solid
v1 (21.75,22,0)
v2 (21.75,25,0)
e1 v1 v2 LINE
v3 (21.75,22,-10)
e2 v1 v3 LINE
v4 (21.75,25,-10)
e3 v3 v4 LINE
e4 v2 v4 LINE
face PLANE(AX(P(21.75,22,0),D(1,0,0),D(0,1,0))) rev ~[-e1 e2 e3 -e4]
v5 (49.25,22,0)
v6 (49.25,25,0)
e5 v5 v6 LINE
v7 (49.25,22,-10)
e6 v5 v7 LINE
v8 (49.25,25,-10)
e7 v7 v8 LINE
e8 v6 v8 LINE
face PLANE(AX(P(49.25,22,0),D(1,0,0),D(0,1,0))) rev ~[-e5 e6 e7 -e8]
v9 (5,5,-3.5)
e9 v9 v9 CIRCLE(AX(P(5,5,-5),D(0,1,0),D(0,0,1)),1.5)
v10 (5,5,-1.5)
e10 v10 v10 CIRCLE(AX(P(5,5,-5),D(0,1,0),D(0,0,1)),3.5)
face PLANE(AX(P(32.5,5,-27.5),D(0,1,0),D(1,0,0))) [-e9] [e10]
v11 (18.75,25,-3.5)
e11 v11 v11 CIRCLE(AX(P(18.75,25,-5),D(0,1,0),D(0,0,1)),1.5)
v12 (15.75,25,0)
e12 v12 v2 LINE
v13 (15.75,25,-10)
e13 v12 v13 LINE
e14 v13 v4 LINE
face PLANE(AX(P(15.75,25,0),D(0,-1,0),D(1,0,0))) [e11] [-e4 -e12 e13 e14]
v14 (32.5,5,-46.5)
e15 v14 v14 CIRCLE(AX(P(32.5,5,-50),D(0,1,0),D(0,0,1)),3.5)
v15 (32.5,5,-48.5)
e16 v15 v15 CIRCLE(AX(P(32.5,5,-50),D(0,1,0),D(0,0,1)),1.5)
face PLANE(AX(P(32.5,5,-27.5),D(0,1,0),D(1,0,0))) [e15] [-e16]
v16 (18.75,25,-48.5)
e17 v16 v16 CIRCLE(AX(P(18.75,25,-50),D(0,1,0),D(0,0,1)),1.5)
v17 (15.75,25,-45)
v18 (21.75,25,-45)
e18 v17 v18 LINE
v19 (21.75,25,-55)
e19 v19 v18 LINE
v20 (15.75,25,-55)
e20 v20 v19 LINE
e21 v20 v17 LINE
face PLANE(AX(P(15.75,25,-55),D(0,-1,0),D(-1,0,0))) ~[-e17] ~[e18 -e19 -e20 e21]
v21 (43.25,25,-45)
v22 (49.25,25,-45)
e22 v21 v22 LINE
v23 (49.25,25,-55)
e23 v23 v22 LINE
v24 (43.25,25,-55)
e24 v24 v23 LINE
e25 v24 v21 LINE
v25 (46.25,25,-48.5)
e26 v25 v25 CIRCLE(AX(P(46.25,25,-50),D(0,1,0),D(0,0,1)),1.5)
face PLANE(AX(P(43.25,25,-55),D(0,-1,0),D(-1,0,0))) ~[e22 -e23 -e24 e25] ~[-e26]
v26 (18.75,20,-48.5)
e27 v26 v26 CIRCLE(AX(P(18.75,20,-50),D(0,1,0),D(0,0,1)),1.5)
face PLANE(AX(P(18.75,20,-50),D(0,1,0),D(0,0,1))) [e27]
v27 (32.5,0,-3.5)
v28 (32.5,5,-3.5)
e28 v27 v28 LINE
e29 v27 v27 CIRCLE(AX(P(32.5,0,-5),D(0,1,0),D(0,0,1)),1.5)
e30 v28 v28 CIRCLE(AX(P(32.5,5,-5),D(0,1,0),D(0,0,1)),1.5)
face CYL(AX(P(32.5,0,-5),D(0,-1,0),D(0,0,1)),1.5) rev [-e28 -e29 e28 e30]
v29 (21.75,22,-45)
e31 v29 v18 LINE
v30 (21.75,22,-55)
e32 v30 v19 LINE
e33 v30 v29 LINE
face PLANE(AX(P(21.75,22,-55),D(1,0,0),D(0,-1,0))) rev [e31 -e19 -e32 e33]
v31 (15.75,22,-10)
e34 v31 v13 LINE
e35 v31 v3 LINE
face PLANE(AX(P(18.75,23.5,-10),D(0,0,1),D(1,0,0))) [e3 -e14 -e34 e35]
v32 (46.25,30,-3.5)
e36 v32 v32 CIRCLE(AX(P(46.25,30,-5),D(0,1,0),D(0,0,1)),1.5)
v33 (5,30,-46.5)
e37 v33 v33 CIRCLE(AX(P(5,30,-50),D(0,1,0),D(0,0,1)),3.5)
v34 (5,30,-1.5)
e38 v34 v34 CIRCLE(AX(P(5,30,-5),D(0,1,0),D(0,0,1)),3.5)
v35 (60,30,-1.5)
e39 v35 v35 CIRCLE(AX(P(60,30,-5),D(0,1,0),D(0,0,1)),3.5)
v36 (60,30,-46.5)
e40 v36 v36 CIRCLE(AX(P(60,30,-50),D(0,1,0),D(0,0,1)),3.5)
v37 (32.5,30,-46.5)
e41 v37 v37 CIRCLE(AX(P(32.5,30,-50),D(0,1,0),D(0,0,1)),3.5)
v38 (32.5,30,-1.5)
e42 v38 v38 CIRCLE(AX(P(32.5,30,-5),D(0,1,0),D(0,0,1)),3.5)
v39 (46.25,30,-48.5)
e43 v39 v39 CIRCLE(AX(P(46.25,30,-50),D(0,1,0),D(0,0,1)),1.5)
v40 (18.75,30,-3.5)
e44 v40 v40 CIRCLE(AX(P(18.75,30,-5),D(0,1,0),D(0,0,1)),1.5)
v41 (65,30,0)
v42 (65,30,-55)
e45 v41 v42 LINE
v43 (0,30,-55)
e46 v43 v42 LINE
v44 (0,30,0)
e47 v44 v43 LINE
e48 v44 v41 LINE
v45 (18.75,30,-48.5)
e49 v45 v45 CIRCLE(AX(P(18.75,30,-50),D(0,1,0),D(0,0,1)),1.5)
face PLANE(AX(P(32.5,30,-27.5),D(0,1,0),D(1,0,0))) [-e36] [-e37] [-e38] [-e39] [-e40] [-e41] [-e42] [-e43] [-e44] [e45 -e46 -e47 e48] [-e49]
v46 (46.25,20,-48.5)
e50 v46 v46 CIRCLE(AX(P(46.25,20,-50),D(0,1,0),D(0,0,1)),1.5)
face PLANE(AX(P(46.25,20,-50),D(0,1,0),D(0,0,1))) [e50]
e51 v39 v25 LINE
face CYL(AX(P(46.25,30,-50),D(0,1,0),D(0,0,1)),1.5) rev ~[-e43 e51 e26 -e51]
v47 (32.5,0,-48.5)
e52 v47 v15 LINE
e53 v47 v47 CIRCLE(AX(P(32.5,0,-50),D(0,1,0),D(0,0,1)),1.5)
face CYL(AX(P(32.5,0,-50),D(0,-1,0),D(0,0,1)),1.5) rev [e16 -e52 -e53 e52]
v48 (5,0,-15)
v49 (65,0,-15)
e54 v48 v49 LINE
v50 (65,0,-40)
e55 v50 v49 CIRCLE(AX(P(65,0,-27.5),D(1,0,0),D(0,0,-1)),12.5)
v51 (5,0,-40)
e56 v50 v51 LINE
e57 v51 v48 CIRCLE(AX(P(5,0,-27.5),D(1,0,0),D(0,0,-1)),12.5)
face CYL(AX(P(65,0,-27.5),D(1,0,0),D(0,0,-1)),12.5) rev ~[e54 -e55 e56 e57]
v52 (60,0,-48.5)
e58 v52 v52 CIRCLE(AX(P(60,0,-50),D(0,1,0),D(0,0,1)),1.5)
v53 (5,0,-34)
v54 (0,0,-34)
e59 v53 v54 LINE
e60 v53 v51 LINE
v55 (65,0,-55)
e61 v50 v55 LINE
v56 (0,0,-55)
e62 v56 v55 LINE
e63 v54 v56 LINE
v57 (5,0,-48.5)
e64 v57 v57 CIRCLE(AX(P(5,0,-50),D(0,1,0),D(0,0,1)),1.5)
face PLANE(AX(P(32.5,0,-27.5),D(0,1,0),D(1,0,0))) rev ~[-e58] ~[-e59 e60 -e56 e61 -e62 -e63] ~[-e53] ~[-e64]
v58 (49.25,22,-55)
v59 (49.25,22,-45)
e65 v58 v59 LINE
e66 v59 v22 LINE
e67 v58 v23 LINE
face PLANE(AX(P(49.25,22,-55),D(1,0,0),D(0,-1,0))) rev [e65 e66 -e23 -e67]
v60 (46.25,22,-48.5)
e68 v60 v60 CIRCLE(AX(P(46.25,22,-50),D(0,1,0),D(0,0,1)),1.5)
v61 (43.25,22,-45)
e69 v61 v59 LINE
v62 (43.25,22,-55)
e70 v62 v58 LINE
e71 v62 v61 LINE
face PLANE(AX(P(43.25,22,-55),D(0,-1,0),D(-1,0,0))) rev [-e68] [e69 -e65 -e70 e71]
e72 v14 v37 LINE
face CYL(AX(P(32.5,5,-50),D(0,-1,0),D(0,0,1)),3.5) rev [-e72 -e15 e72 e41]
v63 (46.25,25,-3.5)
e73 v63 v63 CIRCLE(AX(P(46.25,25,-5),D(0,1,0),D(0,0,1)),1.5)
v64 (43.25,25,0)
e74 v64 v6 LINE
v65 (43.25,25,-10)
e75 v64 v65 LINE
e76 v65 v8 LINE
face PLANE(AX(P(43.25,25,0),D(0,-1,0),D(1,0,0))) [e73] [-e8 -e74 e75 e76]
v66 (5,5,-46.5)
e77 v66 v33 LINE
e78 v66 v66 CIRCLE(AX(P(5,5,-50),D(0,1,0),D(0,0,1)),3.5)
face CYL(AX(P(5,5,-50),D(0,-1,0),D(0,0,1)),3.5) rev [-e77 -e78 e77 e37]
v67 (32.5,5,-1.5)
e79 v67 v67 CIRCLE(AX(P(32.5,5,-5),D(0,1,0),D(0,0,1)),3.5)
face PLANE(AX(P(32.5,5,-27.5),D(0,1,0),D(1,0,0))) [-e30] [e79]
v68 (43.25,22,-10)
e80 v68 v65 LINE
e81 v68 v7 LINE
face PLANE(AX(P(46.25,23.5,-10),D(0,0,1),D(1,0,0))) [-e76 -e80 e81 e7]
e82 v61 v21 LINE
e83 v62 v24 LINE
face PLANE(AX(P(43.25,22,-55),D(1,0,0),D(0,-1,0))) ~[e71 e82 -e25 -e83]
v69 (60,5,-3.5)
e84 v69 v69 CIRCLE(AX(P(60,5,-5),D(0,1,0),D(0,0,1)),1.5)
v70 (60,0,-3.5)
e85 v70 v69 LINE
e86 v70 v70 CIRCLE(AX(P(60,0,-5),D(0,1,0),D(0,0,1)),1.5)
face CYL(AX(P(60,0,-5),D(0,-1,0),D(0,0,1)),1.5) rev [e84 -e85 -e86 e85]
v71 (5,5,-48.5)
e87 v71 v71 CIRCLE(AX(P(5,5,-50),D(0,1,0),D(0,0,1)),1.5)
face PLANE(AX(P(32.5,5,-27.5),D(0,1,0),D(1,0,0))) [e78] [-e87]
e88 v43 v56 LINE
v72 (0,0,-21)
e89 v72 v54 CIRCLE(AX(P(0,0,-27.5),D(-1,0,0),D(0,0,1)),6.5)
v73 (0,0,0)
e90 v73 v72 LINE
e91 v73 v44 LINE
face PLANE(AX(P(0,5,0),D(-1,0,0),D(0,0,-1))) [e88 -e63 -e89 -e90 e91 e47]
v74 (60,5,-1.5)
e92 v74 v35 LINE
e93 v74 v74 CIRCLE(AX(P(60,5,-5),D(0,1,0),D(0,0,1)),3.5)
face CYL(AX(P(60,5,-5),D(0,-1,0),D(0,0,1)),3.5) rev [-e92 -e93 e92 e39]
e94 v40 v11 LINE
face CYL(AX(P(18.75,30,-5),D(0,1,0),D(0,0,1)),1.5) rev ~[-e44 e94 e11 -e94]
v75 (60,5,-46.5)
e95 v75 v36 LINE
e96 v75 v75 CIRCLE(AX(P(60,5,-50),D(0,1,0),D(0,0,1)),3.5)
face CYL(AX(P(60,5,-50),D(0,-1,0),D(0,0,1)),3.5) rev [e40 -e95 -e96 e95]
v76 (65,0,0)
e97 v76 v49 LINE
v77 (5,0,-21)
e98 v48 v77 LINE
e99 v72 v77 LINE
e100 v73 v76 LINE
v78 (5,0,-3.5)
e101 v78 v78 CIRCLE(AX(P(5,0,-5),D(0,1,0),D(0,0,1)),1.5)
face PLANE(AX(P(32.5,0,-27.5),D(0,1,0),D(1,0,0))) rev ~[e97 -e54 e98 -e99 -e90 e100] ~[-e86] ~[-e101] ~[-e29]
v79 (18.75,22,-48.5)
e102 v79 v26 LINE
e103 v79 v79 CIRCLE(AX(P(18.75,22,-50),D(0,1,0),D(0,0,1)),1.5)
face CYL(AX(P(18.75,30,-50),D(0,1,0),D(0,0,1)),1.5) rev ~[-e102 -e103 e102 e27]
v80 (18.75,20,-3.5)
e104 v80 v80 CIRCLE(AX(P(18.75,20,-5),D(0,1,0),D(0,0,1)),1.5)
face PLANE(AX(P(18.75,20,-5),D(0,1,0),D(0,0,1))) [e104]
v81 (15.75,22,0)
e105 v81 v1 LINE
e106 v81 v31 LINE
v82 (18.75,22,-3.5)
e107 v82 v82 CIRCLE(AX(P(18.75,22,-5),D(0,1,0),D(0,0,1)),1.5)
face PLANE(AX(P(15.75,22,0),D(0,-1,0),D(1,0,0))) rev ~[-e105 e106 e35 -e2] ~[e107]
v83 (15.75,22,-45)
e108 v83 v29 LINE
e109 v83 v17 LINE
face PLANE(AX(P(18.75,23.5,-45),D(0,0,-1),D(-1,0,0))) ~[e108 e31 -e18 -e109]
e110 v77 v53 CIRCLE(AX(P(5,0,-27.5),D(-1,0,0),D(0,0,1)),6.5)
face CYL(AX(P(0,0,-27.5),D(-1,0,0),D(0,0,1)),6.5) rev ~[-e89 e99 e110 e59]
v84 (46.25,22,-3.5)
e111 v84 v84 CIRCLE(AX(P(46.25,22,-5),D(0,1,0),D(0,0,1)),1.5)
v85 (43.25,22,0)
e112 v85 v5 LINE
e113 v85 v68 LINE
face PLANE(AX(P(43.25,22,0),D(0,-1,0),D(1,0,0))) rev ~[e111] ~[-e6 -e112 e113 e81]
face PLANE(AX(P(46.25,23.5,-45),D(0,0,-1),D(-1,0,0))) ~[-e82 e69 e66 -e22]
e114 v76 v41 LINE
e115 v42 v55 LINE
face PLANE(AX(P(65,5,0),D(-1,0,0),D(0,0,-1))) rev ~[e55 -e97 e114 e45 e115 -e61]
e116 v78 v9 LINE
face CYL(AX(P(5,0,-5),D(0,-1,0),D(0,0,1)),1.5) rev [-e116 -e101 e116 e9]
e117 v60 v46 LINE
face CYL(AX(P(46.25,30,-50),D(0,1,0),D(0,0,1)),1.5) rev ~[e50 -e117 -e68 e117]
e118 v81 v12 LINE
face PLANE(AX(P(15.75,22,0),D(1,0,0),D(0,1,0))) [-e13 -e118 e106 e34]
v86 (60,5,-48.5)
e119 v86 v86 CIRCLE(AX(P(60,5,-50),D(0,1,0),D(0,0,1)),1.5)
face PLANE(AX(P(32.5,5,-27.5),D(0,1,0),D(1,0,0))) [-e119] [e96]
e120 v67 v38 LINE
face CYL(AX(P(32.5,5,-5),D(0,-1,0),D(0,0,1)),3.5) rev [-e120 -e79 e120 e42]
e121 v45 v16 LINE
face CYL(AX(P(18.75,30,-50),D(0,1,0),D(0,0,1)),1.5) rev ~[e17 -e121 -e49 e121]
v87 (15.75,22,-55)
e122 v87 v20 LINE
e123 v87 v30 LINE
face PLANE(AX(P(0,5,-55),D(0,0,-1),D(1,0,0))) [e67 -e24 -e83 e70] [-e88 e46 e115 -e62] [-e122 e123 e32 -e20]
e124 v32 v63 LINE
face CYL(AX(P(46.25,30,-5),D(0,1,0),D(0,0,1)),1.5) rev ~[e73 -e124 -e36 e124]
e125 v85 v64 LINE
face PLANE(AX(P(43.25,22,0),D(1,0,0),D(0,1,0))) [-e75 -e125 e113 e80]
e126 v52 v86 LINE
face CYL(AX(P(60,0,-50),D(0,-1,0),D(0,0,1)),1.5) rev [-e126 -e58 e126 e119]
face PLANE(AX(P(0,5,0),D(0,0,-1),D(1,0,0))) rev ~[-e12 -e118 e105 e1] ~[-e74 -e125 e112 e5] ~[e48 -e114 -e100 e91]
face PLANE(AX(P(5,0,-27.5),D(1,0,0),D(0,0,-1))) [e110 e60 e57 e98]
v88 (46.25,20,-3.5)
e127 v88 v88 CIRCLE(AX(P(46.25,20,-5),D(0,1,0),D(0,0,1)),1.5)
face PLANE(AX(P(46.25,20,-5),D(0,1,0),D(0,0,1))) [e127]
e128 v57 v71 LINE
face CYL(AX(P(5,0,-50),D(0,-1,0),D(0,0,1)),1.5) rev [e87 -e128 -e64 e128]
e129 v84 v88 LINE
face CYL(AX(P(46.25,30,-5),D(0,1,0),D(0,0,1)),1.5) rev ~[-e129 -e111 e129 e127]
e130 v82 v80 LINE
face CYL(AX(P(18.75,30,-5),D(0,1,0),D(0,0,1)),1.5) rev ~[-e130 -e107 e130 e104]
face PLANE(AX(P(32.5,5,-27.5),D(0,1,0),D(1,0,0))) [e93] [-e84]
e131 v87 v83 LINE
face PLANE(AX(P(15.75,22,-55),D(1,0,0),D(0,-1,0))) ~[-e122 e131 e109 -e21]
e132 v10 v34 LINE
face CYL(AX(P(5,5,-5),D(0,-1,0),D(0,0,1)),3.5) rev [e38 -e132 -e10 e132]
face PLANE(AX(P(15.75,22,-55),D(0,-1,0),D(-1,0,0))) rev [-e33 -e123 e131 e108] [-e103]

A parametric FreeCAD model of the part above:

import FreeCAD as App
import Part
import Sketcher
from FreeCAD import Vector
Q = App.Units.Quantity

doc = App.newDocument("Part")
body = doc.addObject("PartDesign::Body", "Body")

sketch1 = doc.addObject("Sketcher::SketchObject", "Sketch")
body.addObject(sketch1)
sketch1.AttachmentSupport = (doc.XZ_Plane, [""])
sketch1.MapMode = "FlatFace"
sketch1.addGeometry([
    Part.LineSegment(Vector(0, -55, 0), Vector(0, 0, 0)),
    Part.LineSegment(Vector(0, 0, 0), Vector(65, 0, 0)),
    Part.LineSegment(Vector(65, 0, 0), Vector(65, -55, 0)),
    Part.LineSegment(Vector(65, -55, 0), Vector(0, -55, 0)),
    Part.Circle(Vector(5, -5, 0), Vector(0, 0, 1), 1.5),
    Part.Circle(Vector(32.5, -5, 0), Vector(0, 0, 1), 1.5),
    Part.Circle(Vector(60, -5, 0), Vector(0, 0, 1), 1.5),
    Part.Circle(Vector(5, -50, 0), Vector(0, 0, 1), 1.5),
    Part.Circle(Vector(32.5, -50, 0), Vector(0, 0, 1), 1.5),
    Part.Circle(Vector(60, -50, 0), Vector(0, 0, 1), 1.5),
], False)
sketch1.addConstraint([
    Sketcher.Constraint("Coincident", 0, 2, 1, 1),
    Sketcher.Constraint("Coincident", 1, 2, 2, 1),
    Sketcher.Constraint("Coincident", 2, 2, 3, 1),
    Sketcher.Constraint("Coincident", 3, 2, 0, 1),
    Sketcher.Constraint("Vertical", 0),
    Sketcher.Constraint("Horizontal", 1),
    Sketcher.Constraint("Vertical", 2),
    Sketcher.Constraint("Horizontal", 3),
    Sketcher.Constraint("Coincident", 0, 2, -1, 1),
    Sketcher.Constraint("Equal", 4, 5),
    Sketcher.Constraint("Equal", 5, 6),
    Sketcher.Constraint("Equal", 6, 7),
    Sketcher.Constraint("Equal", 7, 8),
    Sketcher.Constraint("Equal", 8, 9),
    Sketcher.Constraint("Horizontal", 4, 3, 5, 3),
    Sketcher.Constraint("Horizontal", 5, 3, 6, 3),
    Sketcher.Constraint("Horizontal", 7, 3, 8, 3),
    Sketcher.Constraint("Horizontal", 8, 3, 9, 3),
    Sketcher.Constraint("Vertical", 4, 3, 7, 3),
    Sketcher.Constraint("Vertical", 5, 3, 8, 3),
    Sketcher.Constraint("Vertical", 6, 3, 9, 3),
    Sketcher.Constraint("Diameter", 4, Q("3 mm")),
    Sketcher.Constraint("DistanceX", 1, 1, 1, 2, Q("65 mm")),
    Sketcher.Constraint("DistanceY", 0, 1, 0, 2, Q("55 mm")),
    Sketcher.Constraint("DistanceX", -1, 1, 4, 3, Q("5 mm")),
    Sketcher.Constraint("DistanceY", 4, 3, -1, 1, Q("5 mm")),
    Sketcher.Constraint("DistanceX", -1, 1, 6, 3, Q("60 mm")),
    Sketcher.Constraint("DistanceY", 7, 3, -1, 1, Q("50 mm")),
    Sketcher.Constraint("DistanceX", -1, 1, 5, 3, Q("32.5 mm")),
])
pad1 = doc.addObject("PartDesign::Pad", "Pad")
body.addObject(pad1)
pad1.Profile = sketch1
pad1.Length = 5
pad1.Reversed = True

sketch2 = doc.addObject("Sketcher::SketchObject", "Sketch001")
body.addObject(sketch2)
sketch2.AttachmentSupport = (doc.XZ_Plane, [""])
sketch2.MapMode = "FlatFace"
sketch2.AttachmentOffset = App.Placement(Vector(0, 0, -5), App.Rotation())
sketch2.addGeometry([
    Part.LineSegment(Vector(0, -55, 0), Vector(0, 0, 0)),
    Part.LineSegment(Vector(0, 0, 0), Vector(65, 0, 0)),
    Part.LineSegment(Vector(65, 0, 0), Vector(65, -55, 0)),
    Part.LineSegment(Vector(65, -55, 0), Vector(0, -55, 0)),
    Part.Circle(Vector(5, -5, 0), Vector(0, 0, 1), 3.5),
    Part.Circle(Vector(32.5, -5, 0), Vector(0, 0, 1), 3.5),
    Part.Circle(Vector(60, -5, 0), Vector(0, 0, 1), 3.5),
    Part.Circle(Vector(5, -50, 0), Vector(0, 0, 1), 3.5),
    Part.Circle(Vector(32.5, -50, 0), Vector(0, 0, 1), 3.5),
    Part.Circle(Vector(60, -50, 0), Vector(0, 0, 1), 3.5),
], False)
sketch2.addConstraint([
    Sketcher.Constraint("Coincident", 0, 2, 1, 1),
    Sketcher.Constraint("Coincident", 1, 2, 2, 1),
    Sketcher.Constraint("Coincident", 2, 2, 3, 1),
    Sketcher.Constraint("Coincident", 3, 2, 0, 1),
    Sketcher.Constraint("Vertical", 0),
    Sketcher.Constraint("Horizontal", 1),
    Sketcher.Constraint("Vertical", 2),
    Sketcher.Constraint("Horizontal", 3),
    Sketcher.Constraint("Coincident", 0, 2, -1, 1),
    Sketcher.Constraint("Equal", 4, 5),
    Sketcher.Constraint("Equal", 5, 6),
    Sketcher.Constraint("Equal", 6, 7),
    Sketcher.Constraint("Equal", 7, 8),
    Sketcher.Constraint("Equal", 8, 9),
    Sketcher.Constraint("Horizontal", 4, 3, 5, 3),
    Sketcher.Constraint("Horizontal", 5, 3, 6, 3),
    Sketcher.Constraint("Horizontal", 7, 3, 8, 3),
    Sketcher.Constraint("Horizontal", 8, 3, 9, 3),
    Sketcher.Constraint("Vertical", 4, 3, 7, 3),
    Sketcher.Constraint("Vertical", 5, 3, 8, 3),
    Sketcher.Constraint("Vertical", 6, 3, 9, 3),
    Sketcher.Constraint("Diameter", 4, Q("7 mm")),
    Sketcher.Constraint("DistanceX", 1, 1, 1, 2, Q("65 mm")),
    Sketcher.Constraint("DistanceY", 0, 1, 0, 2, Q("55 mm")),
    Sketcher.Constraint("DistanceX", -1, 1, 4, 3, Q("5 mm")),
    Sketcher.Constraint("DistanceY", 4, 3, -1, 1, Q("5 mm")),
    Sketcher.Constraint("DistanceX", -1, 1, 6, 3, Q("60 mm")),
    Sketcher.Constraint("DistanceY", 7, 3, -1, 1, Q("50 mm")),
    Sketcher.Constraint("DistanceX", -1, 1, 5, 3, Q("32.5 mm")),
])
pad2 = doc.addObject("PartDesign::Pad", "Pad001")
body.addObject(pad2)
pad2.Profile = sketch2
pad2.Length = 25
pad2.Reversed = True

sketch3 = doc.addObject("Sketcher::SketchObject", "Sketch002")
body.addObject(sketch3)
sketch3.AttachmentSupport = (doc.YZ_Plane, [""])
sketch3.MapMode = "FlatFace"
sketch3.AttachmentOffset = App.Placement(Vector(0, 0, 65), App.Rotation())
sketch3.addGeometry(Part.Circle(Vector(0, -28, 0), Vector(0, 0, 1), 12), False)
sketch3.addConstraint([
    Sketcher.Constraint("PointOnObject", 0, 3, -2),
    Sketcher.Constraint("Diameter", 0, Q("25 mm")),
    Sketcher.Constraint("DistanceY", 0, 3, -1, 1, Q("27.5 mm")),
])
pocket1 = doc.addObject("PartDesign::Pocket", "Pocket")
body.addObject(pocket1)
pocket1.Profile = sketch3
pocket1.Length = 60

sketch4 = doc.addObject("Sketcher::SketchObject", "Sketch003")
body.addObject(sketch4)
sketch4.AttachmentSupport = (doc.YZ_Plane, [""])
sketch4.MapMode = "FlatFace"
sketch4.addGeometry(Part.Circle(Vector(0, -28, 0), Vector(0, 0, 1), 6), False)
sketch4.addConstraint([
    Sketcher.Constraint("PointOnObject", 0, 3, -2),
    Sketcher.Constraint("Diameter", 0, Q("13 mm")),
    Sketcher.Constraint("DistanceY", 0, 3, -1, 1, Q("27.5 mm")),
])
pocket2 = doc.addObject("PartDesign::Pocket", "Pocket001")
body.addObject(pocket2)
pocket2.Profile = sketch4
pocket2.Length = 5
pocket2.Reversed = True

sketch5 = doc.addObject("Sketcher::SketchObject", "Sketch004")
body.addObject(sketch5)
sketch5.AttachmentSupport = (doc.XZ_Plane, [""])
sketch5.MapMode = "FlatFace"
sketch5.AttachmentOffset = App.Placement(Vector(0, 0, -30), App.Rotation())
sketch5.addGeometry([
    Part.Circle(Vector(18.8, -50, 0), Vector(0, 0, 1), 1.5),
    Part.Circle(Vector(46.2, -50, 0), Vector(0, 0, 1), 1.5),
    Part.Circle(Vector(46.2, -5, 0), Vector(0, 0, 1), 1.5),
    Part.Circle(Vector(18.8, -5, 0), Vector(0, 0, 1), 1.5),
], False)
sketch5.addConstraint([
    Sketcher.Constraint("Equal", 0, 1),
    Sketcher.Constraint("Equal", 1, 2),
    Sketcher.Constraint("Equal", 2, 3),
    Sketcher.Constraint("Horizontal", 0, 3, 1, 3),
    Sketcher.Constraint("Horizontal", 2, 3, 3, 3),
    Sketcher.Constraint("Vertical", 1, 3, 2, 3),
    Sketcher.Constraint("Vertical", 0, 3, 3, 3),
    Sketcher.Constraint("Diameter", 0, Q("3 mm")),
    Sketcher.Constraint("DistanceY", 0, 3, -1, 1, Q("50 mm")),
    Sketcher.Constraint("DistanceY", 2, 3, -1, 1, Q("5 mm")),
    Sketcher.Constraint("DistanceX", 0, 3, 1, 3, Q("27.5 mm")),
    Sketcher.Constraint("DistanceX", -1, 1, 0, 3, Q("18.75 mm")),
])
pocket3 = doc.addObject("PartDesign::Pocket", "Pocket002")
body.addObject(pocket3)
pocket3.Profile = sketch5
pocket3.Length = 10
pocket3.Reversed = True

sketch6 = doc.addObject("Sketcher::SketchObject", "Sketch005")
body.addObject(sketch6)
sketch6.AttachmentSupport = (doc.XY_Plane, [""])
sketch6.MapMode = "FlatFace"
sketch6.addGeometry([
    Part.LineSegment(Vector(15.8, 25, 0), Vector(15.8, 22, 0)),
    Part.LineSegment(Vector(15.8, 22, 0), Vector(21.8, 22, 0)),
    Part.LineSegment(Vector(21.8, 22, 0), Vector(21.8, 25, 0)),
    Part.LineSegment(Vector(21.8, 25, 0), Vector(15.8, 25, 0)),
    Part.LineSegment(Vector(43.2, 25, 0), Vector(43.2, 22, 0)),
    Part.LineSegment(Vector(43.2, 22, 0), Vector(49.2, 22, 0)),
    Part.LineSegment(Vector(49.2, 22, 0), Vector(49.2, 25, 0)),
    Part.LineSegment(Vector(49.2, 25, 0), Vector(43.2, 25, 0)),
], False)
sketch6.addConstraint([
    Sketcher.Constraint("Coincident", 0, 2, 1, 1),
    Sketcher.Constraint("Coincident", 1, 2, 2, 1),
    Sketcher.Constraint("Coincident", 2, 2, 3, 1),
    Sketcher.Constraint("Coincident", 3, 2, 0, 1),
    Sketcher.Constraint("Coincident", 4, 2, 5, 1),
    Sketcher.Constraint("Coincident", 5, 2, 6, 1),
    Sketcher.Constraint("Coincident", 6, 2, 7, 1),
    Sketcher.Constraint("Coincident", 7, 2, 4, 1),
    Sketcher.Constraint("Vertical", 0),
    Sketcher.Constraint("Horizontal", 1),
    Sketcher.Constraint("Vertical", 2),
    Sketcher.Constraint("Horizontal", 3),
    Sketcher.Constraint("Vertical", 4),
    Sketcher.Constraint("Horizontal", 5),
    Sketcher.Constraint("Vertical", 6),
    Sketcher.Constraint("Horizontal", 7),
    Sketcher.Constraint("Horizontal", 1, 2, 4, 2),
    Sketcher.Constraint("Horizontal", 3, 2, 6, 2),
    Sketcher.Constraint("Equal", 3, 5),
    Sketcher.Constraint("DistanceX", 1, 1, 1, 2, Q("6 mm")),
    Sketcher.Constraint("DistanceY", 0, 2, 0, 1, Q("3 mm")),
    Sketcher.Constraint("DistanceY", -1, 1, 0, 2, Q("22 mm")),
    Sketcher.Constraint("DistanceX", 1, 2, 4, 2, Q("21.5 mm")),
    Sketcher.Constraint("DistanceX", -1, 1, 0, 2, Q("15.75 mm")),
])
pocket4 = doc.addObject("PartDesign::Pocket", "Pocket003")
body.addObject(pocket4)
pocket4.Profile = sketch6
pocket4.Length = 10
doc.recompute()

datumplane = doc.addObject("PartDesign::Plane", "DatumPlane")
body.addObject(datumplane)
datumplane.AttachmentSupport = (doc.XY_Plane, [""])
datumplane.MapMode = "FlatFace"
datumplane.AttachmentOffset = App.Placement(Vector(0, 0, -27.5), App.Rotation())
mirrored = doc.addObject("PartDesign::Mirrored", "Mirrored")
body.addObject(mirrored)
mirrored.Originals = [pocket4]
mirrored.MirrorPlane = (datumplane, [""])
body.Tip = mirrored

doc.recompute()
